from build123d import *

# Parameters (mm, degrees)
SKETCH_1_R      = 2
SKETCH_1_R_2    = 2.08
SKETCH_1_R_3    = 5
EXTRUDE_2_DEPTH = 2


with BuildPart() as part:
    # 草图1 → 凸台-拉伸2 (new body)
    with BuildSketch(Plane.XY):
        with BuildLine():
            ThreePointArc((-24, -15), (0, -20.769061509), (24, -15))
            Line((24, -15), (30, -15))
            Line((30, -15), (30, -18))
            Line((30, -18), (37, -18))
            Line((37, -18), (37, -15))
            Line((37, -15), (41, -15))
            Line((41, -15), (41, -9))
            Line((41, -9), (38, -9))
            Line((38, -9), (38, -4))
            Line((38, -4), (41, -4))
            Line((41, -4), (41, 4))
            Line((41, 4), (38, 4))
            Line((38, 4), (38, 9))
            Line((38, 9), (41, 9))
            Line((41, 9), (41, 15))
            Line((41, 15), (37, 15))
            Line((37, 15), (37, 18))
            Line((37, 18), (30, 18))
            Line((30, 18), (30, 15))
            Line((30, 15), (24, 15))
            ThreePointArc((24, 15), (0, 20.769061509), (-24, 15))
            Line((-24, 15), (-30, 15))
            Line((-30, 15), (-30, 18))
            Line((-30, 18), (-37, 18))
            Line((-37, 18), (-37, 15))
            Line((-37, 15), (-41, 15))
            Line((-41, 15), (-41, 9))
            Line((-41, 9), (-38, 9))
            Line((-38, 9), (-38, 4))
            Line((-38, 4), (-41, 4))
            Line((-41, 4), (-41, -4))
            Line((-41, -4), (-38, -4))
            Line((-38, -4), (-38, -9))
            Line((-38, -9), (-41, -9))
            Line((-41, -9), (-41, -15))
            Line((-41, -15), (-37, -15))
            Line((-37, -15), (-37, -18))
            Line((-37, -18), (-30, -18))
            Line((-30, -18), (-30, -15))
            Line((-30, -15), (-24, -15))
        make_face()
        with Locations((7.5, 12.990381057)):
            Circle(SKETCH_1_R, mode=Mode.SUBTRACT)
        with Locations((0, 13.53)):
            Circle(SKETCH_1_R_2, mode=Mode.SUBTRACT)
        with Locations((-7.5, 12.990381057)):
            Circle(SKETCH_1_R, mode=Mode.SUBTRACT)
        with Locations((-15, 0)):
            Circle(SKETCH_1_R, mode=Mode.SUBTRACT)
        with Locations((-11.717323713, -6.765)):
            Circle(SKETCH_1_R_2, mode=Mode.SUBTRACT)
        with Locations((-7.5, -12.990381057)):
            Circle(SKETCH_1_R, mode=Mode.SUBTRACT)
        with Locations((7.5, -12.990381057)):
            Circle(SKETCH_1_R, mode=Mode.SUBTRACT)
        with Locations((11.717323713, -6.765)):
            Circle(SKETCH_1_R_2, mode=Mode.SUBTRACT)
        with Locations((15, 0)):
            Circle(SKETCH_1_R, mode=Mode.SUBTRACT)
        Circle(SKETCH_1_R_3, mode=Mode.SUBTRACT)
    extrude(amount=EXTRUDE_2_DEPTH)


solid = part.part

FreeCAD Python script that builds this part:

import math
import FreeCAD as App
import Part
import Sketcher
from FreeCAD import Vector

doc = App.newDocument("Part")
body = doc.addObject("PartDesign::Body", "Body")

# Sketch on XY plane
sketch1 = body.newObject("Sketcher::SketchObject", "Sketch")
sketch1.AttachmentSupport = (doc.getObject("XY_Plane"), [""])
sketch1.MapMode = "FlatFace"
sketch1.addGeometry([
    Part.ArcOfCircle(Part.Circle(Vector(0, 32.036934, 0), Vector(0, 0, 1), 52.805995), math.radians(-117.032372), math.radians(-62.967628)),  # 0
    Part.LineSegment(Vector(24, -15, 0), Vector(30, -15, 0)),  # 1
    Part.LineSegment(Vector(30, -15, 0), Vector(30, -18, 0)),  # 2
    Part.LineSegment(Vector(30, -18, 0), Vector(37, -18, 0)),  # 3
    Part.LineSegment(Vector(37, -18, 0), Vector(37, -15, 0)),  # 4
    Part.LineSegment(Vector(37, -15, 0), Vector(41, -15, 0)),  # 5
    Part.LineSegment(Vector(41, -15, 0), Vector(41, -9, 0)),  # 6
    Part.LineSegment(Vector(41, -9, 0), Vector(38, -9, 0)),  # 7
    Part.LineSegment(Vector(38, -9, 0), Vector(38, -4, 0)),  # 8
    Part.LineSegment(Vector(38, -4, 0), Vector(41, -4, 0)),  # 9
    Part.LineSegment(Vector(41, -4, 0), Vector(41, 4, 0)),  # 10
    Part.LineSegment(Vector(41, 4, 0), Vector(38, 4, 0)),  # 11
    Part.LineSegment(Vector(38, 4, 0), Vector(38, 9, 0)),  # 12
    Part.LineSegment(Vector(38, 9, 0), Vector(41, 9, 0)),  # 13
    Part.LineSegment(Vector(41, 9, 0), Vector(41, 15, 0)),  # 14
    Part.LineSegment(Vector(41, 15, 0), Vector(37, 15, 0)),  # 15
    Part.LineSegment(Vector(37, 15, 0), Vector(37, 18, 0)),  # 16
    Part.LineSegment(Vector(37, 18, 0), Vector(30, 18, 0)),  # 17
    Part.LineSegment(Vector(30, 18, 0), Vector(30, 15, 0)),  # 18
    Part.LineSegment(Vector(30, 15, 0), Vector(24, 15, 0)),  # 19
    Part.ArcOfCircle(Part.Circle(Vector(0, -32.036934, 0), Vector(0, 0, 1), 52.805995), math.radians(62.967628), math.radians(117.032372)),  # 20
    Part.LineSegment(Vector(-24, 15, 0), Vector(-30, 15, 0)),  # 21
    Part.LineSegment(Vector(-30, 15, 0), Vector(-30, 18, 0)),  # 22
    Part.LineSegment(Vector(-30, 18, 0), Vector(-37, 18, 0)),  # 23
    Part.LineSegment(Vector(-37, 18, 0), Vector(-37, 15, 0)),  # 24
    Part.LineSegment(Vector(-37, 15, 0), Vector(-41, 15, 0)),  # 25
    Part.LineSegment(Vector(-41, 15, 0), Vector(-41, 9, 0)),  # 26
    Part.LineSegment(Vector(-41, 9, 0), Vector(-38, 9, 0)),  # 27
    Part.LineSegment(Vector(-38, 9, 0), Vector(-38, 4, 0)),  # 28
    Part.LineSegment(Vector(-38, 4, 0), Vector(-41, 4, 0)),  # 29
    Part.LineSegment(Vector(-41, 4, 0), Vector(-41, -4, 0)),  # 30
    Part.LineSegment(Vector(-41, -4, 0), Vector(-38, -4, 0)),  # 31
    Part.LineSegment(Vector(-38, -4, 0), Vector(-38, -9, 0)),  # 32
    Part.LineSegment(Vector(-38, -9, 0), Vector(-41, -9, 0)),  # 33
    Part.LineSegment(Vector(-41, -9, 0), Vector(-41, -15, 0)),  # 34
    Part.LineSegment(Vector(-41, -15, 0), Vector(-37, -15, 0)),  # 35
    Part.LineSegment(Vector(-37, -15, 0), Vector(-37, -18, 0)),  # 36
    Part.LineSegment(Vector(-37, -18, 0), Vector(-30, -18, 0)),  # 37
    Part.LineSegment(Vector(-30, -18, 0), Vector(-30, -15, 0)),  # 38
    Part.LineSegment(Vector(-30, -15, 0), Vector(-24, -15, 0)),  # 39
    Part.Circle(Vector(-7.5, -12.990381, 0), Vector(0, 0, 1), 2),  # 40
    Part.Circle(Vector(-11.717324, -6.765, 0), Vector(0, 0, 1), 2.08),  # 41
    Part.Circle(Vector(-15, 0, 0), Vector(0, 0, 1), 2),  # 42
    Part.Circle(Vector(7.5, -12.990381, 0), Vector(0, 0, 1), 2),  # 43
    Part.Circle(Vector(0, 0, 0), Vector(0, 0, 1), 5),  # 44
    Part.Circle(Vector(11.717324, -6.765, 0), Vector(0, 0, 1), 2.08),  # 45
    Part.Circle(Vector(15, 0, 0), Vector(0, 0, 1), 2),  # 46
    Part.Circle(Vector(-7.5, 12.990381, 0), Vector(0, 0, 1), 2),  # 47
    Part.Circle(Vector(0, 13.53, 0), Vector(0, 0, 1), 2.08),  # 48
    Part.Circle(Vector(7.5, 12.990381, 0), Vector(0, 0, 1), 2),  # 49
], False)
sketch1.addConstraint([
    Sketcher.Constraint("Coincident", 0, 2, 1, 1),
    Sketcher.Constraint("Coincident", 1, 2, 2, 1),
    Sketcher.Constraint("Coincident", 2, 2, 3, 1),
    Sketcher.Constraint("Coincident", 3, 2, 4, 1),
    Sketcher.Constraint("Coincident", 4, 2, 5, 1),
    Sketcher.Constraint("Coincident", 5, 2, 6, 1),
    Sketcher.Constraint("Coincident", 6, 2, 7, 1),
    Sketcher.Constraint("Coincident", 7, 2, 8, 1),
    Sketcher.Constraint("Coincident", 8, 2, 9, 1),
    Sketcher.Constraint("Coincident", 9, 2, 10, 1),
    Sketcher.Constraint("Coincident", 10, 2, 11, 1),
    Sketcher.Constraint("Coincident", 11, 2, 12, 1),
    Sketcher.Constraint("Coincident", 12, 2, 13, 1),
    Sketcher.Constraint("Coincident", 13, 2, 14, 1),
    Sketcher.Constraint("Coincident", 14, 2, 15, 1),
    Sketcher.Constraint("Coincident", 15, 2, 16, 1),
    Sketcher.Constraint("Coincident", 16, 2, 17, 1),
    Sketcher.Constraint("Coincident", 17, 2, 18, 1),
    Sketcher.Constraint("Coincident", 18, 2, 19, 1),
    Sketcher.Constraint("Coincident", 19, 2, 20, 1),
    Sketcher.Constraint("Coincident", 20, 2, 21, 1),
    Sketcher.Constraint("Coincident", 21, 2, 22, 1),
    Sketcher.Constraint("Coincident", 22, 2, 23, 1),
    Sketcher.Constraint("Coincident", 23, 2, 24, 1),
    Sketcher.Constraint("Coincident", 24, 2, 25, 1),
    Sketcher.Constraint("Coincident", 25, 2, 26, 1),
    Sketcher.Constraint("Coincident", 26, 2, 27, 1),
    Sketcher.Constraint("Coincident", 27, 2, 28, 1),
    Sketcher.Constraint("Coincident", 28, 2, 29, 1),
    Sketcher.Constraint("Coincident", 29, 2, 30, 1),
    Sketcher.Constraint("Coincident", 30, 2, 31, 1),
    Sketcher.Constraint("Coincident", 31, 2, 32, 1),
    Sketcher.Constraint("Coincident", 32, 2, 33, 1),
    Sketcher.Constraint("Coincident", 33, 2, 34, 1),
    Sketcher.Constraint("Coincident", 34, 2, 35, 1),
    Sketcher.Constraint("Coincident", 35, 2, 36, 1),
    Sketcher.Constraint("Coincident", 36, 2, 37, 1),
    Sketcher.Constraint("Coincident", 37, 2, 38, 1),
    Sketcher.Constraint("Coincident", 38, 2, 39, 1),
    Sketcher.Constraint("Coincident", 39, 2, 0, 1),
    Sketcher.Constraint("Horizontal", 1),
    Sketcher.Constraint("Vertical", 2),
    Sketcher.Constraint("Horizontal", 3),
    Sketcher.Constraint("Vertical", 4),
    Sketcher.Constraint("Horizontal", 5),
    Sketcher.Constraint("Vertical", 6),
    Sketcher.Constraint("Horizontal", 7),
    Sketcher.Constraint("Vertical", 8),
    Sketcher.Constraint("Horizontal", 9),
    Sketcher.Constraint("Vertical", 10),
    Sketcher.Constraint("Horizontal", 11),
    Sketcher.Constraint("Vertical", 12),
    Sketcher.Constraint("Horizontal", 13),
    Sketcher.Constraint("Vertical", 14),
    Sketcher.Constraint("Horizontal", 15),
    Sketcher.Constraint("Vertical", 16),
    Sketcher.Constraint("Horizontal", 17),
    Sketcher.Constraint("Vertical", 18),
    Sketcher.Constraint("Horizontal", 19),
    Sketcher.Constraint("Horizontal", 21),
    Sketcher.Constraint("Vertical", 22),
    Sketcher.Constraint("Horizontal", 23),
    Sketcher.Constraint("Vertical", 24),
    Sketcher.Constraint("Horizontal", 25),
    Sketcher.Constraint("Vertical", 26),
    Sketcher.Constraint("Horizontal", 27),
    Sketcher.Constraint("Vertical", 28),
    Sketcher.Constraint("Horizontal", 29),
    Sketcher.Constraint("Vertical", 30),
    Sketcher.Constraint("Horizontal", 31),
    Sketcher.Constraint("Vertical", 32),
    Sketcher.Constraint("Horizontal", 33),
    Sketcher.Constraint("Vertical", 34),
    Sketcher.Constraint("Horizontal", 35),
    Sketcher.Constraint("Vertical", 36),
    Sketcher.Constraint("Horizontal", 37),
    Sketcher.Constraint("Vertical", 38),
    Sketcher.Constraint("Horizontal", 39),
    Sketcher.Constraint("Coincident", 44, 3, -1, 1),
    Sketcher.Constraint("Equal", 0, 20),
    Sketcher.Constraint("Equal", 40, 42),
    Sketcher.Constraint("Equal", 42, 43),
    Sketcher.Constraint("Equal", 41, 45),
    Sketcher.Constraint("Equal", 43, 46),
    Sketcher.Constraint("Equal", 46, 47),
    Sketcher.Constraint("Equal", 45, 48),
    Sketcher.Constraint("Equal", 47, 49),
    Sketcher.Constraint("Symmetric", 0, 3, 20, 3, -1, 1),
    Sketcher.Constraint("Symmetric", 42, 3, 46, 3, -1, 1),
    Sketcher.Constraint("Symmetric", 43, 3, 47, 3, -1, 1),
    Sketcher.Constraint("Symmetric", 40, 3, 49, 3, -1, 1),
    Sketcher.Constraint("Symmetric", 1, 2, 21, 2, -1, 1),
    Sketcher.Constraint("Symmetric", 3, 2, 23, 2, -1, 1),
    Sketcher.Constraint("Symmetric", 5, 2, 25, 2, -1, 1),
    Sketcher.Constraint("Symmetric", 7, 2, 27, 2, -1, 1),
    Sketcher.Constraint("Symmetric", 9, 2, 29, 2, -1, 1),
    Sketcher.Constraint("Symmetric", 11, 2, 31, 2, -1, 1),
    Sketcher.Constraint("Symmetric", 13, 2, 33, 2, -1, 1),
    Sketcher.Constraint("Symmetric", 15, 2, 35, 2, -1, 1),
    Sketcher.Constraint("Symmetric", 17, 2, 37, 2, -1, 1),
    Sketcher.Constraint("Symmetric", 40, 3, 43, 3, -2),
    Sketcher.Constraint("Symmetric", 41, 3, 45, 3, -2),
    Sketcher.Constraint("Symmetric", 19, 2, 20, 2, -2),
    Sketcher.Constraint("Symmetric", 17, 2, 22, 2, -2),
    Sketcher.Constraint("Symmetric", 15, 2, 24, 2, -2),
    Sketcher.Constraint("Symmetric", 13, 2, 26, 2, -2),
    Sketcher.Constraint("Symmetric", 11, 2, 28, 2, -2),
    Sketcher.Constraint("PointOnObject", 42, 3, -1),
    Sketcher.Constraint("PointOnObject", 48, 3, -2),
    Sketcher.Constraint("Horizontal", 1, 2, 4, 2),
    Sketcher.Constraint("Horizontal", 35, 2, 38, 2),
    Sketcher.Constraint("Vertical", 6, 2, 9, 2),
    Sketcher.Constraint("Equal", 33, 2),
    Sketcher.Constraint("Equal", 39, 6),
    Sketcher.Constraint("Diameter", 40, 4.0),
    Sketcher.Constraint("Diameter", 44, 10.0),
    Sketcher.Constraint("Diameter", 41, 4.16),
    Sketcher.Constraint("DistanceX", 1, 1, 1, 2, 6.0),
    Sketcher.Constraint("DistanceX", 3, 1, 3, 2, 7.0),
    Sketcher.Constraint("DistanceX", 5, 1, 5, 2, 4.0),
    Sketcher.Constraint("DistanceX", 7, 2, 7, 1, 3.0),
    Sketcher.Constraint("DistanceY", 8, 1, 8, 2, 5.0),
    Sketcher.Constraint("DistanceY", 10, 1, 10, 2, 8.0),
    Sketcher.Constraint("DistanceX", 42, 3, -1, 1, 15.0),
    Sketcher.Constraint("DistanceX", -1, 1, 0, 2, 24.0),
    Sketcher.Constraint("DistanceX", 40, 3, 43, 3, 15.0),
    Sketcher.Constraint("DistanceY", -1, 1, 48, 3, 13.53),
    Sketcher.Constraint("DistanceY", 41, 3, -1, 1, 6.765),
    Sketcher.Constraint("Radius", 0, 52.805995),
    Sketcher.Constraint("DistanceY", 40, 3, -1, 1, 12.990381),
    Sketcher.Constraint("DistanceX", 41, 3, -1, 1, 11.717324),
])
pad1 = body.newObject("PartDesign::Pad", "Pad")
pad1.Profile = sketch1
pad1.Length = 2

doc.recompute()
